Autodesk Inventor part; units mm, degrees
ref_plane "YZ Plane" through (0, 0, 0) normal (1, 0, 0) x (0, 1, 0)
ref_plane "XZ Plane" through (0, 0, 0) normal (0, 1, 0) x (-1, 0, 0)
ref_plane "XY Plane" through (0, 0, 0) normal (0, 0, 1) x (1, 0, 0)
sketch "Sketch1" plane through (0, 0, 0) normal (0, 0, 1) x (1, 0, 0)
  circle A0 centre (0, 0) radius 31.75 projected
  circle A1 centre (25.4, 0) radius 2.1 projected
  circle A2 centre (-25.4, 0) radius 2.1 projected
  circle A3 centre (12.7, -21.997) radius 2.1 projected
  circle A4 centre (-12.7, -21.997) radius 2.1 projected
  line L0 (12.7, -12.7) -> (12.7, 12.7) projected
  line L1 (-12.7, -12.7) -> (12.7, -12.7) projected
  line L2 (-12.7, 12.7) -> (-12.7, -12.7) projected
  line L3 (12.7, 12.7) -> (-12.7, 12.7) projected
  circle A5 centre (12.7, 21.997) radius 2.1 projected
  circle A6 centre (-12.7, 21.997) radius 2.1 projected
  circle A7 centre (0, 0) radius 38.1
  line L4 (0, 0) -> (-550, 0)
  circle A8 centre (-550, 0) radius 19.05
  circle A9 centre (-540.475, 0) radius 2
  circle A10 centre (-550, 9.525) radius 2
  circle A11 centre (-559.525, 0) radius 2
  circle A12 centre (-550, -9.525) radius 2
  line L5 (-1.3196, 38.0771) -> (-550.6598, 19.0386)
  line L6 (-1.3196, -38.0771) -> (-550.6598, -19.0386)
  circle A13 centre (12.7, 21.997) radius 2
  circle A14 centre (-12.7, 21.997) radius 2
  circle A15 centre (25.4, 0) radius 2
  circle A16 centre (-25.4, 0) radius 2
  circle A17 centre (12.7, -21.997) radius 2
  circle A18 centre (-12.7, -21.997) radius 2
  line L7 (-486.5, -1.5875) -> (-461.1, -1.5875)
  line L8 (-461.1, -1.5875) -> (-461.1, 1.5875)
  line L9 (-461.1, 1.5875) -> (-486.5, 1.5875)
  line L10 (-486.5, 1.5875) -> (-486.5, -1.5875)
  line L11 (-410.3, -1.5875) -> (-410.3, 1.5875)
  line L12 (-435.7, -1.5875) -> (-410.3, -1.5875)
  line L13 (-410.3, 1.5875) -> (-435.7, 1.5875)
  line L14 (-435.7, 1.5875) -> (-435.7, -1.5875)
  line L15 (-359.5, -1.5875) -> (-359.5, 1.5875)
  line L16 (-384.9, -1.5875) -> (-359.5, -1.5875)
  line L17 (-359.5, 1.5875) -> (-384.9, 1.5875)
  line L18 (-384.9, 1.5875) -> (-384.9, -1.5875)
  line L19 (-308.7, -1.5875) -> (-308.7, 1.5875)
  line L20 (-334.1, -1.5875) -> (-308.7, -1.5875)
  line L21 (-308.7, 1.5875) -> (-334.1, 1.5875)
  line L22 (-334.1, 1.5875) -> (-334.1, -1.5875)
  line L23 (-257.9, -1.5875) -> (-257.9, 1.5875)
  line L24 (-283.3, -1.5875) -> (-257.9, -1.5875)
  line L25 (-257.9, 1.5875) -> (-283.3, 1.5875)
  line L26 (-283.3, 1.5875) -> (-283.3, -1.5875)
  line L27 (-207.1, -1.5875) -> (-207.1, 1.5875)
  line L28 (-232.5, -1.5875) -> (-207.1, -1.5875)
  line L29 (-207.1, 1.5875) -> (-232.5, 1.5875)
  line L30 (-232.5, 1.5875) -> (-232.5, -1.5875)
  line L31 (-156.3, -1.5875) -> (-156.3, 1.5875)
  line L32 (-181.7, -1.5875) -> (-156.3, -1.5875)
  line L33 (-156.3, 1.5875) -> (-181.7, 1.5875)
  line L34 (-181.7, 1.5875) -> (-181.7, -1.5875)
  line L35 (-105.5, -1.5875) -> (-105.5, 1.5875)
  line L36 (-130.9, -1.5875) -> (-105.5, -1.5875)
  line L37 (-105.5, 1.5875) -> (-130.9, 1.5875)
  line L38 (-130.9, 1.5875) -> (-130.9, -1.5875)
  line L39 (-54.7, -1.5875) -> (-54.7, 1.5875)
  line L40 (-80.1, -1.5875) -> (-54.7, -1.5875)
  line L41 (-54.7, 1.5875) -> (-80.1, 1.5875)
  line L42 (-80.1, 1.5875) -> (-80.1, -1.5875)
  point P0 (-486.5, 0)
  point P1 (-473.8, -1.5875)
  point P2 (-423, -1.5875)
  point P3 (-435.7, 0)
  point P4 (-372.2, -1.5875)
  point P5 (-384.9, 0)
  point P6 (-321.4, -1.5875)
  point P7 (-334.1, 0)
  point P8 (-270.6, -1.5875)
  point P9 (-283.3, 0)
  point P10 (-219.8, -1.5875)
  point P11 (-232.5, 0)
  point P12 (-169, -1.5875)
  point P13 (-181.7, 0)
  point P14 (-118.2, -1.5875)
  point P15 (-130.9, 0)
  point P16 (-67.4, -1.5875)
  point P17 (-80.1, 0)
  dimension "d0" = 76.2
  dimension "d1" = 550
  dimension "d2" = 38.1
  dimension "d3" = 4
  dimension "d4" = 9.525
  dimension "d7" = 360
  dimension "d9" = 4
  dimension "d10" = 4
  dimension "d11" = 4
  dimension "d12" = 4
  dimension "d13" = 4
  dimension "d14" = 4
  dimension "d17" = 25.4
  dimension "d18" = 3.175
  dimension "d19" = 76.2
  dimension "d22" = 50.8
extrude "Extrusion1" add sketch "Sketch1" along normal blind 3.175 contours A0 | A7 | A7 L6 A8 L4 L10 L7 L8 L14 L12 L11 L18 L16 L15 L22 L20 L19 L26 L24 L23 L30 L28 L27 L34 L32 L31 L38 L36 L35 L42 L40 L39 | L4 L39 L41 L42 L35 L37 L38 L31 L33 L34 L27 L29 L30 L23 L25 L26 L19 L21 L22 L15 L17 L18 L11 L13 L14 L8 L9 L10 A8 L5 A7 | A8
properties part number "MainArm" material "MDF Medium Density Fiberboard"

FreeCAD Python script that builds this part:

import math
import FreeCAD as App
import Part
import Sketcher
from FreeCAD import Vector
Q = App.Units.Quantity

doc = App.newDocument("Part")
body = doc.addObject("PartDesign::Body", "Body")

sketch1 = body.newObject("Sketcher::SketchObject", "Sketch")
sketch1.AttachmentSupport = (doc.getObject("XY_Plane"), [""])
sketch1.MapMode = "FlatFace"
sketch1.addGeometry(Part.LineSegment(Vector(-1.3196, 38.0771, 0), Vector(-550.6598, 19.0386, 0)), False)
sketch1.addGeometry(Part.ArcOfCircle(Part.Circle(Vector(-550, 0, 0), Vector(0, 0, 1), 19.05), math.radians(91.984843), math.radians(268.015157)), False)
sketch1.addGeometry(Part.LineSegment(Vector(-550.6598, -19.0386, 0), Vector(-1.3196, -38.0771, 0)), False)
sketch1.addGeometry(Part.ArcOfCircle(Part.Circle(Vector(0, 0, 0), Vector(0, 0, 1), 38.1), math.radians(-91.984848), math.radians(91.984848)), False)
sketch1.addGeometry(Part.Circle(Vector(-12.7, -21.997, 0), Vector(0, 0, 1), 2.1), False)
sketch1.addGeometry(Part.Circle(Vector(12.7, -21.997, 0), Vector(0, 0, 1), 2.1), False)
sketch1.addGeometry(Part.ArcOfCircle(Part.Circle(Vector(-25.4, 0, 0), Vector(0, 0, 1), 2.1), math.radians(180), math.radians(360)), False)
sketch1.addGeometry(Part.ArcOfCircle(Part.Circle(Vector(-25.4, 0, 0), Vector(0, 0, 1), 2.1), math.radians(0), math.radians(180)), False)
sketch1.addGeometry(Part.LineSegment(Vector(-12.7, -12.7, 0), Vector(-12.7, 0, 0)), False)
sketch1.addGeometry(Part.LineSegment(Vector(-12.7, 0, 0), Vector(-12.7, 12.7, 0)), False)
sketch1.addGeometry(Part.LineSegment(Vector(-12.7, 12.7, 0), Vector(12.7, 12.7, 0)), False)
sketch1.addGeometry(Part.LineSegment(Vector(12.7, 12.7, 0), Vector(12.7, -12.7, 0)), False)
sketch1.addGeometry(Part.LineSegment(Vector(12.7, -12.7, 0), Vector(-12.7, -12.7, 0)), False)
sketch1.addGeometry(Part.Circle(Vector(25.4, 0, 0), Vector(0, 0, 1), 2.1), False)
sketch1.addGeometry(Part.Circle(Vector(-12.7, 21.997, 0), Vector(0, 0, 1), 2.1), False)
sketch1.addGeometry(Part.Circle(Vector(12.7, 21.997, 0), Vector(0, 0, 1), 2.1), False)
sketch1.addGeometry(Part.LineSegment(Vector(-54.7, 1.5875, 0), Vector(-54.7, -1.5875, 0)), False)
sketch1.addGeometry(Part.LineSegment(Vector(-54.7, -1.5875, 0), Vector(-80.1, -1.5875, 0)), False)
sketch1.addGeometry(Part.LineSegment(Vector(-80.1, -1.5875, 0), Vector(-80.1, 1.5875, 0)), False)
sketch1.addGeometry(Part.LineSegment(Vector(-80.1, 1.5875, 0), Vector(-54.7, 1.5875, 0)), False)
sketch1.addGeometry(Part.LineSegment(Vector(-105.5, 1.5875, 0), Vector(-105.5, -1.5875, 0)), False)
sketch1.addGeometry(Part.LineSegment(Vector(-105.5, -1.5875, 0), Vector(-130.9, -1.5875, 0)), False)
sketch1.addGeometry(Part.LineSegment(Vector(-130.9, -1.5875, 0), Vector(-130.9, 1.5875, 0)), False)
sketch1.addGeometry(Part.LineSegment(Vector(-130.9, 1.5875, 0), Vector(-105.5, 1.5875, 0)), False)
sketch1.addGeometry(Part.LineSegment(Vector(-156.3, 1.5875, 0), Vector(-156.3, -1.5875, 0)), False)
sketch1.addGeometry(Part.LineSegment(Vector(-156.3, -1.5875, 0), Vector(-181.7, -1.5875, 0)), False)
sketch1.addGeometry(Part.LineSegment(Vector(-181.7, -1.5875, 0), Vector(-181.7, 1.5875, 0)), False)
sketch1.addGeometry(Part.LineSegment(Vector(-181.7, 1.5875, 0), Vector(-156.3, 1.5875, 0)), False)
sketch1.addGeometry(Part.LineSegment(Vector(-207.1, 1.5875, 0), Vector(-207.1, -1.5875, 0)), False)
sketch1.addGeometry(Part.LineSegment(Vector(-207.1, -1.5875, 0), Vector(-232.5, -1.5875, 0)), False)
sketch1.addGeometry(Part.LineSegment(Vector(-232.5, -1.5875, 0), Vector(-232.5, 1.5875, 0)), False)
sketch1.addGeometry(Part.LineSegment(Vector(-232.5, 1.5875, 0), Vector(-207.1, 1.5875, 0)), False)
sketch1.addGeometry(Part.LineSegment(Vector(-257.9, 1.5875, 0), Vector(-257.9, -1.5875, 0)), False)
sketch1.addGeometry(Part.LineSegment(Vector(-257.9, -1.5875, 0), Vector(-283.3, -1.5875, 0)), False)
sketch1.addGeometry(Part.LineSegment(Vector(-283.3, -1.5875, 0), Vector(-283.3, 1.5875, 0)), False)
sketch1.addGeometry(Part.LineSegment(Vector(-283.3, 1.5875, 0), Vector(-257.9, 1.5875, 0)), False)
sketch1.addGeometry(Part.LineSegment(Vector(-308.7, 1.5875, 0), Vector(-308.7, -1.5875, 0)), False)
sketch1.addGeometry(Part.LineSegment(Vector(-308.7, -1.5875, 0), Vector(-334.1, -1.5875, 0)), False)
sketch1.addGeometry(Part.LineSegment(Vector(-334.1, -1.5875, 0), Vector(-334.1, 1.5875, 0)), False)
sketch1.addGeometry(Part.LineSegment(Vector(-334.1, 1.5875, 0), Vector(-308.7, 1.5875, 0)), False)
sketch1.addGeometry(Part.LineSegment(Vector(-359.5, 1.5875, 0), Vector(-359.5, -1.5875, 0)), False)
sketch1.addGeometry(Part.LineSegment(Vector(-359.5, -1.5875, 0), Vector(-384.9, -1.5875, 0)), False)
sketch1.addGeometry(Part.LineSegment(Vector(-384.9, -1.5875, 0), Vector(-384.9, 1.5875, 0)), False)
sketch1.addGeometry(Part.LineSegment(Vector(-384.9, 1.5875, 0), Vector(-359.5, 1.5875, 0)), False)
sketch1.addGeometry(Part.LineSegment(Vector(-410.3, 1.5875, 0), Vector(-410.3, -1.5875, 0)), False)
sketch1.addGeometry(Part.LineSegment(Vector(-410.3, -1.5875, 0), Vector(-435.7, -1.5875, 0)), False)
sketch1.addGeometry(Part.LineSegment(Vector(-435.7, -1.5875, 0), Vector(-435.7, 1.5875, 0)), False)
sketch1.addGeometry(Part.LineSegment(Vector(-435.7, 1.5875, 0), Vector(-410.3, 1.5875, 0)), False)
sketch1.addGeometry(Part.LineSegment(Vector(-461.1, 1.5875, 0), Vector(-461.1, -1.5875, 0)), False)
sketch1.addGeometry(Part.LineSegment(Vector(-461.1, -1.5875, 0), Vector(-486.5, -1.5875, 0)), False)
sketch1.addGeometry(Part.LineSegment(Vector(-486.5, -1.5875, 0), Vector(-486.5, 1.5875, 0)), False)
sketch1.addGeometry(Part.LineSegment(Vector(-486.5, 1.5875, 0), Vector(-461.1, 1.5875, 0)), False)
sketch1.addGeometry(Part.Circle(Vector(-550, 9.525, 0), Vector(0, 0, 1), 2), False)
sketch1.addGeometry(Part.Circle(Vector(-550, -9.525, 0), Vector(0, 0, 1), 2), False)
sketch1.addGeometry(Part.Circle(Vector(-559.525, 0, 0), Vector(0, 0, 1), 2), False)
sketch1.addGeometry(Part.Circle(Vector(-540.475, 0, 0), Vector(0, 0, 1), 2), False)
sketch1.addConstraint(Sketcher.Constraint("Tangent", 0, 2, 1, 1))
sketch1.addConstraint(Sketcher.Constraint("Tangent", 1, 2, 2, 1))
sketch1.addConstraint(Sketcher.Constraint("Tangent", 2, 2, 3, 1))
sketch1.addConstraint(Sketcher.Constraint("Tangent", 3, 2, 0, 1))
sketch1.addConstraint(Sketcher.Constraint("Tangent", 6, 1, 7, 2))
sketch1.addConstraint(Sketcher.Constraint("Coincident", 7, 1, 6, 2))
sketch1.addConstraint(Sketcher.Constraint("Coincident", 8, 2, 9, 1))
sketch1.addConstraint(Sketcher.Constraint("Coincident", 9, 2, 10, 1))
sketch1.addConstraint(Sketcher.Constraint("Coincident", 10, 2, 11, 1))
sketch1.addConstraint(Sketcher.Constraint("Coincident", 11, 2, 12, 1))
sketch1.addConstraint(Sketcher.Constraint("Coincident", 12, 2, 8, 1))
sketch1.addConstraint(Sketcher.Constraint("Coincident", 16, 2, 17, 1))
sketch1.addConstraint(Sketcher.Constraint("Coincident", 17, 2, 18, 1))
sketch1.addConstraint(Sketcher.Constraint("Coincident", 18, 2, 19, 1))
sketch1.addConstraint(Sketcher.Constraint("Coincident", 19, 2, 16, 1))
sketch1.addConstraint(Sketcher.Constraint("Coincident", 20, 2, 21, 1))
sketch1.addConstraint(Sketcher.Constraint("Coincident", 21, 2, 22, 1))
sketch1.addConstraint(Sketcher.Constraint("Coincident", 22, 2, 23, 1))
sketch1.addConstraint(Sketcher.Constraint("Coincident", 23, 2, 20, 1))
sketch1.addConstraint(Sketcher.Constraint("Coincident", 24, 2, 25, 1))
sketch1.addConstraint(Sketcher.Constraint("Coincident", 25, 2, 26, 1))
sketch1.addConstraint(Sketcher.Constraint("Coincident", 26, 2, 27, 1))
sketch1.addConstraint(Sketcher.Constraint("Coincident", 27, 2, 24, 1))
sketch1.addConstraint(Sketcher.Constraint("Coincident", 28, 2, 29, 1))
sketch1.addConstraint(Sketcher.Constraint("Coincident", 29, 2, 30, 1))
sketch1.addConstraint(Sketcher.Constraint("Coincident", 30, 2, 31, 1))
sketch1.addConstraint(Sketcher.Constraint("Coincident", 31, 2, 28, 1))
sketch1.addConstraint(Sketcher.Constraint("Coincident", 32, 2, 33, 1))
sketch1.addConstraint(Sketcher.Constraint("Coincident", 33, 2, 34, 1))
sketch1.addConstraint(Sketcher.Constraint("Coincident", 34, 2, 35, 1))
sketch1.addConstraint(Sketcher.Constraint("Coincident", 35, 2, 32, 1))
sketch1.addConstraint(Sketcher.Constraint("Coincident", 36, 2, 37, 1))
sketch1.addConstraint(Sketcher.Constraint("Coincident", 37, 2, 38, 1))
sketch1.addConstraint(Sketcher.Constraint("Coincident", 38, 2, 39, 1))
sketch1.addConstraint(Sketcher.Constraint("Coincident", 39, 2, 36, 1))
sketch1.addConstraint(Sketcher.Constraint("Coincident", 40, 2, 41, 1))
sketch1.addConstraint(Sketcher.Constraint("Coincident", 41, 2, 42, 1))
sketch1.addConstraint(Sketcher.Constraint("Coincident", 42, 2, 43, 1))
sketch1.addConstraint(Sketcher.Constraint("Coincident", 43, 2, 40, 1))
sketch1.addConstraint(Sketcher.Constraint("Coincident", 44, 2, 45, 1))
sketch1.addConstraint(Sketcher.Constraint("Coincident", 45, 2, 46, 1))
sketch1.addConstraint(Sketcher.Constraint("Coincident", 46, 2, 47, 1))
sketch1.addConstraint(Sketcher.Constraint("Coincident", 47, 2, 44, 1))
sketch1.addConstraint(Sketcher.Constraint("Coincident", 48, 2, 49, 1))
sketch1.addConstraint(Sketcher.Constraint("Coincident", 49, 2, 50, 1))
sketch1.addConstraint(Sketcher.Constraint("Coincident", 50, 2, 51, 1))
sketch1.addConstraint(Sketcher.Constraint("Coincident", 51, 2, 48, 1))
sketch1.addConstraint(Sketcher.Constraint("Vertical", 8))
sketch1.addConstraint(Sketcher.Constraint("Vertical", 9))
sketch1.addConstraint(Sketcher.Constraint("Horizontal", 10))
sketch1.addConstraint(Sketcher.Constraint("Vertical", 11))
sketch1.addConstraint(Sketcher.Constraint("Horizontal", 12))
sketch1.addConstraint(Sketcher.Constraint("Vertical", 16))
sketch1.addConstraint(Sketcher.Constraint("Horizontal", 17))
sketch1.addConstraint(Sketcher.Constraint("Vertical", 18))
sketch1.addConstraint(Sketcher.Constraint("Horizontal", 19))
sketch1.addConstraint(Sketcher.Constraint("Vertical", 20))
sketch1.addConstraint(Sketcher.Constraint("Horizontal", 21))
sketch1.addConstraint(Sketcher.Constraint("Vertical", 22))
sketch1.addConstraint(Sketcher.Constraint("Horizontal", 23))
sketch1.addConstraint(Sketcher.Constraint("Vertical", 24))
sketch1.addConstraint(Sketcher.Constraint("Horizontal", 25))
sketch1.addConstraint(Sketcher.Constraint("Vertical", 26))
sketch1.addConstraint(Sketcher.Constraint("Horizontal", 27))
sketch1.addConstraint(Sketcher.Constraint("Vertical", 28))
sketch1.addConstraint(Sketcher.Constraint("Horizontal", 29))
sketch1.addConstraint(Sketcher.Constraint("Vertical", 30))
sketch1.addConstraint(Sketcher.Constraint("Horizontal", 31))
sketch1.addConstraint(Sketcher.Constraint("Vertical", 32))
sketch1.addConstraint(Sketcher.Constraint("Horizontal", 33))
sketch1.addConstraint(Sketcher.Constraint("Vertical", 34))
sketch1.addConstraint(Sketcher.Constraint("Horizontal", 35))
sketch1.addConstraint(Sketcher.Constraint("Vertical", 36))
sketch1.addConstraint(Sketcher.Constraint("Horizontal", 37))
sketch1.addConstraint(Sketcher.Constraint("Vertical", 38))
sketch1.addConstraint(Sketcher.Constraint("Horizontal", 39))
sketch1.addConstraint(Sketcher.Constraint("Vertical", 40))
sketch1.addConstraint(Sketcher.Constraint("Horizontal", 41))
sketch1.addConstraint(Sketcher.Constraint("Vertical", 42))
sketch1.addConstraint(Sketcher.Constraint("Horizontal", 43))
sketch1.addConstraint(Sketcher.Constraint("Vertical", 44))
sketch1.addConstraint(Sketcher.Constraint("Horizontal", 45))
sketch1.addConstraint(Sketcher.Constraint("Vertical", 46))
sketch1.addConstraint(Sketcher.Constraint("Horizontal", 47))
sketch1.addConstraint(Sketcher.Constraint("Vertical", 48))
sketch1.addConstraint(Sketcher.Constraint("Horizontal", 49))
sketch1.addConstraint(Sketcher.Constraint("Vertical", 50))
sketch1.addConstraint(Sketcher.Constraint("Horizontal", 51))
sketch1.addConstraint(Sketcher.Constraint("Coincident", 3, 3, -1, 1))
sketch1.addConstraint(Sketcher.Constraint("Equal", 4, 5))
sketch1.addConstraint(Sketcher.Constraint("Equal", 5, 6))
sketch1.addConstraint(Sketcher.Constraint("Equal", 7, 13))
sketch1.addConstraint(Sketcher.Constraint("Equal", 13, 14))
sketch1.addConstraint(Sketcher.Constraint("Equal", 14, 15))
sketch1.addConstraint(Sketcher.Constraint("Equal", 52, 53))
sketch1.addConstraint(Sketcher.Constraint("Equal", 53, 54))
sketch1.addConstraint(Sketcher.Constraint("Equal", 54, 55))
sketch1.addConstraint(Sketcher.Constraint("Symmetric", 6, 3, 13, 3, -1, 1))
sketch1.addConstraint(Sketcher.Constraint("Symmetric", 5, 3, 14, 3, -1, 1))
sketch1.addConstraint(Sketcher.Constraint("Symmetric", 4, 3, 15, 3, -1, 1))
sketch1.addConstraint(Sketcher.Constraint("Symmetric", 9, 2, 11, 2, -1, 1))
sketch1.addConstraint(Sketcher.Constraint("Symmetric", 4, 3, 5, 3, -2))
sketch1.addConstraint(Sketcher.Constraint("Symmetric", 52, 3, 53, 3, -1))
sketch1.addConstraint(Sketcher.Constraint("PointOnObject", 1, 3, -1))
sketch1.addConstraint(Sketcher.Constraint("PointOnObject", 6, 3, -1))
sketch1.addConstraint(Sketcher.Constraint("PointOnObject", 54, 3, -1))
sketch1.addConstraint(Sketcher.Constraint("PointOnObject", 55, 3, -1))
sketch1.addConstraint(Sketcher.Constraint("PointOnObject", 6, 1, -1))
sketch1.addConstraint(Sketcher.Constraint("PointOnObject", 7, 1, -1))
sketch1.addConstraint(Sketcher.Constraint("PointOnObject", 8, 2, -1))
sketch1.addConstraint(Sketcher.Constraint("Horizontal", 17, 2, 20, 2))
sketch1.addConstraint(Sketcher.Constraint("Horizontal", 19, 2, 22, 2))
sketch1.addConstraint(Sketcher.Constraint("Horizontal", 21, 2, 24, 2))
sketch1.addConstraint(Sketcher.Constraint("Horizontal", 23, 2, 26, 2))
sketch1.addConstraint(Sketcher.Constraint("Horizontal", 25, 2, 28, 2))
sketch1.addConstraint(Sketcher.Constraint("Horizontal", 27, 2, 30, 2))
sketch1.addConstraint(Sketcher.Constraint("Horizontal", 29, 2, 32, 2))
sketch1.addConstraint(Sketcher.Constraint("Horizontal", 31, 2, 34, 2))
sketch1.addConstraint(Sketcher.Constraint("Horizontal", 33, 2, 36, 2))
sketch1.addConstraint(Sketcher.Constraint("Horizontal", 35, 2, 38, 2))
sketch1.addConstraint(Sketcher.Constraint("Horizontal", 37, 2, 40, 2))
sketch1.addConstraint(Sketcher.Constraint("Horizontal", 39, 2, 42, 2))
sketch1.addConstraint(Sketcher.Constraint("Horizontal", 41, 2, 44, 2))
sketch1.addConstraint(Sketcher.Constraint("Horizontal", 43, 2, 46, 2))
sketch1.addConstraint(Sketcher.Constraint("Horizontal", 45, 2, 48, 2))
sketch1.addConstraint(Sketcher.Constraint("Horizontal", 47, 2, 50, 2))
sketch1.addConstraint(Sketcher.Constraint("Vertical", 1, 3, 52, 3))
sketch1.addConstraint(Sketcher.Constraint("Vertical", 14, 3, 8, 2))
sketch1.addConstraint(Sketcher.Constraint("Equal", 12, 17))
sketch1.addConstraint(Sketcher.Constraint("Equal", 19, 21))
sketch1.addConstraint(Sketcher.Constraint("Equal", 23, 25))
sketch1.addConstraint(Sketcher.Constraint("Equal", 27, 29))
sketch1.addConstraint(Sketcher.Constraint("Equal", 31, 33))
sketch1.addConstraint(Sketcher.Constraint("Equal", 35, 37))
sketch1.addConstraint(Sketcher.Constraint("Equal", 39, 41))
sketch1.addConstraint(Sketcher.Constraint("Equal", 43, 45))
sketch1.addConstraint(Sketcher.Constraint("Equal", 47, 49))
sketch1.addConstraint(Sketcher.Constraint("Equal", 51, 11))
sketch1.addConstraint(Sketcher.Constraint("Radius", 3, Q("1.5 in")))
sketch1.addConstraint(Sketcher.Constraint("DistanceX", 10, 1, 10, 2, Q("1 in")))
sketch1.addConstraint(Sketcher.Constraint("Radius", 1, Q("0.75 in")))
sketch1.addConstraint(Sketcher.Constraint("DistanceX", 6, 3, -1, 1, Q("1 in")))
sketch1.addConstraint(Sketcher.Constraint("DistanceX", 20, 2, 17, 2, Q("1 in")))
sketch1.addConstraint(Sketcher.Constraint("DistanceX", 24, 2, 21, 2, Q("1 in")))
sketch1.addConstraint(Sketcher.Constraint("DistanceX", 28, 2, 25, 2, Q("1 in")))
sketch1.addConstraint(Sketcher.Constraint("DistanceX", 32, 2, 29, 2, Q("1 in")))
sketch1.addConstraint(Sketcher.Constraint("DistanceX", 36, 2, 33, 2, Q("1 in")))
sketch1.addConstraint(Sketcher.Constraint("DistanceX", 40, 2, 37, 2, Q("1 in")))
sketch1.addConstraint(Sketcher.Constraint("DistanceX", 44, 2, 41, 2, Q("1 in")))
sketch1.addConstraint(Sketcher.Constraint("DistanceX", 48, 2, 45, 2, Q("1 in")))
sketch1.addConstraint(Sketcher.Constraint("Diameter", 52, 4.0))
sketch1.addConstraint(Sketcher.Constraint("DistanceY", 16, 2, 16, 1, Q("0.125 in")))
sketch1.addConstraint(Sketcher.Constraint("DistanceY", -1, 1, 52, 3, Q("0.375 in")))
sketch1.addConstraint(Sketcher.Constraint("DistanceX", 54, 3, 1, 3, Q("0.375 in")))
sketch1.addConstraint(Sketcher.Constraint("DistanceX", 1, 3, 55, 3, Q("0.375 in")))
sketch1.addConstraint(Sketcher.Constraint("DistanceX", 1, 3, 49, 2, Q("2.5 in")))
sketch1.addConstraint(Sketcher.Constraint("Diameter", 4, 4.2))
sketch1.addConstraint(Sketcher.Constraint("DistanceX", 1, 3, -1, 1, 550.0))
sketch1.addConstraint(Sketcher.Constraint("DistanceY", 16, 2, -1, 1, Q("0.0625 in")))
sketch1.addConstraint(Sketcher.Constraint("DistanceY", 4, 3, -1, 1, 21.997))
pad1 = body.newObject("PartDesign::Pad", "Pad")
pad1.Profile = sketch1
pad1.Length = Q("0.125 in")

doc.recompute()
